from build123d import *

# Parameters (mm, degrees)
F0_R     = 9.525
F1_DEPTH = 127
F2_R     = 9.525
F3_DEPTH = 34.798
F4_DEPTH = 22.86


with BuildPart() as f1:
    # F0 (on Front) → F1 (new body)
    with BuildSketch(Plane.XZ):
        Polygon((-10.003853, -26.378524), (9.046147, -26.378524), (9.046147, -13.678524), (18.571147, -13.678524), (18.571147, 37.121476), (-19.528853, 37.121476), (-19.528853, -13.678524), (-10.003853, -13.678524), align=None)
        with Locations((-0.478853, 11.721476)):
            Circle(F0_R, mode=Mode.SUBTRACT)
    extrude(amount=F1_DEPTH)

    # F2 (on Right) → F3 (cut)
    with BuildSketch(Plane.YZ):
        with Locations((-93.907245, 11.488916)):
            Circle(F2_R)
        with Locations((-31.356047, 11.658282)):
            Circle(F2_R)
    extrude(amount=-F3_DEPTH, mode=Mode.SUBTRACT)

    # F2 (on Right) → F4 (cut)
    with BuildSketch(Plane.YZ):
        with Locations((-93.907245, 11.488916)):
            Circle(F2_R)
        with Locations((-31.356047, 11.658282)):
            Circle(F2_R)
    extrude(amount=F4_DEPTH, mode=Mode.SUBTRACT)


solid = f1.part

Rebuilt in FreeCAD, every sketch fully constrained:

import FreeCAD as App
import Part
import Sketcher
Q = App.Units.Quantity

doc = App.newDocument("Part")
params = doc.addObject("Spreadsheet::Sheet", "Params")
for row, (alias, value) in enumerate([
    ("sketch1_diameter", "0.75 in"),
    ("sketch1_height", "2 in"),
    ("sketch1_width", "1.5 in"),
    ("sketch1_height2", "0.5 in"),
    ("sketch1_width2", "0.75 in"),
    ("pad1_length", "5 in"),
    ("sketch2_diameter", "0.75 in"),
    ("pocket1_length", "1.37 in"),
    ("sketch3_diameter", "0.75 in"),
    ("pocket2_length", "0.9 in"),
], start=1):
    params.set(f"A{row}", alias)
    params.set(f"B{row}", "=" + value)
    params.setAlias(f"B{row}", alias)

body = doc.addObject("PartDesign::Body", "Body")

sketch1 = body.newObject("Sketcher::SketchObject", "Sketch")
sketch1.AttachmentSupport = (doc.getObject("XZ_Plane"), [""])
sketch1.MapMode = "FlatFace"
sketch1.addGeometry([
    Part.LineSegment(App.Vector(-10, -26, 0), App.Vector(9, -26, 0)),
    Part.LineSegment(App.Vector(9, -26, 0), App.Vector(9, -14, 0)),
    Part.LineSegment(App.Vector(9, -14, 0), App.Vector(19, -14, 0)),
    Part.LineSegment(App.Vector(19, -14, 0), App.Vector(19, 37, 0)),
    Part.LineSegment(App.Vector(19, 37, 0), App.Vector(-20, 37, 0)),
    Part.LineSegment(App.Vector(-20, 37, 0), App.Vector(-20, -14, 0)),
    Part.LineSegment(App.Vector(-20, -14, 0), App.Vector(-10, -14, 0)),
    Part.LineSegment(App.Vector(-10, -14, 0), App.Vector(-10, -26, 0)),
    Part.Circle(App.Vector(0, 12, 0), App.Vector(0, 0, 1), 10),
], False)
sketch1.addConstraint([
    Sketcher.Constraint("Coincident", 0, 2, 1, 1),
    Sketcher.Constraint("Coincident", 1, 2, 2, 1),
    Sketcher.Constraint("Coincident", 2, 2, 3, 1),
    Sketcher.Constraint("Coincident", 3, 2, 4, 1),
    Sketcher.Constraint("Coincident", 4, 2, 5, 1),
    Sketcher.Constraint("Coincident", 5, 2, 6, 1),
    Sketcher.Constraint("Coincident", 6, 2, 7, 1),
    Sketcher.Constraint("Coincident", 7, 2, 0, 1),
    Sketcher.Constraint("Horizontal", 0),
    Sketcher.Constraint("Vertical", 1),
    Sketcher.Constraint("Horizontal", 2),
    Sketcher.Constraint("Vertical", 3),
    Sketcher.Constraint("Horizontal", 4),
    Sketcher.Constraint("Vertical", 5),
    Sketcher.Constraint("Horizontal", 6),
    Sketcher.Constraint("Vertical", 7),
    Sketcher.Constraint("Horizontal", 2, 2, 5, 2),
    Sketcher.Constraint("Equal", 2, 6),
    Sketcher.Constraint("Diameter", 8, Q("0.75 in")),
    Sketcher.Constraint("DistanceY", 3, 1, 3, 2, Q("2 in")),
    Sketcher.Constraint("DistanceX", 4, 2, 4, 1, Q("1.5 in")),
    Sketcher.Constraint("DistanceY", 1, 1, 1, 2, Q("0.5 in")),
    Sketcher.Constraint("DistanceY", 1, 2, 8, 3, Q("1 in")),
    Sketcher.Constraint("DistanceX", 0, 1, 0, 2, Q("0.75 in")),
    Sketcher.Constraint("DistanceX", 8, 3, 2, 2, Q("0.75 in")),
    Sketcher.Constraint("DistanceX", 8, 3, -1, 1, Q("0.478853 mm")),
    Sketcher.Constraint("DistanceY", -1, 1, 8, 3, Q("11.721476 mm")),
])
sketch1.setExpression("Constraints[18]", "Params.sketch1_diameter")
sketch1.setExpression("Constraints[19]", "Params.sketch1_height")
sketch1.setExpression("Constraints[20]", "Params.sketch1_width")
sketch1.setExpression("Constraints[21]", "Params.sketch1_height2")
sketch1.setExpression("Constraints[23]", "Params.sketch1_width2")
pad1 = body.newObject("PartDesign::Pad", "Pad")
pad1.Profile = sketch1
pad1.setExpression("Length", "Params.pad1_length")

sketch2 = body.newObject("Sketcher::SketchObject", "Sketch001")
sketch2.AttachmentSupport = (doc.getObject("YZ_Plane"), [""])
sketch2.MapMode = "FlatFace"
sketch2.addGeometry([
    Part.Circle(App.Vector(-94, 11, 0), App.Vector(0, 0, 1), 10),
    Part.Circle(App.Vector(-31, 12, 0), App.Vector(0, 0, 1), 10),
], False)
sketch2.addConstraint([
    Sketcher.Constraint("Equal", 0, 1),
    Sketcher.Constraint("Diameter", 0, Q("0.75 in")),
    Sketcher.Constraint("DistanceX", 0, 3, -1, 1, Q("93.907245 mm")),
    Sketcher.Constraint("DistanceY", -1, 1, 0, 3, Q("11.488916 mm")),
    Sketcher.Constraint("DistanceX", 1, 3, -1, 1, Q("31.356047 mm")),
    Sketcher.Constraint("DistanceY", -1, 1, 1, 3, Q("11.658282 mm")),
])
sketch2.setExpression("Constraints[1]", "Params.sketch2_diameter")
pocket1 = body.newObject("PartDesign::Pocket", "Pocket")
pocket1.Profile = sketch2
pocket1.setExpression("Length", "Params.pocket1_length")

sketch3 = body.newObject("Sketcher::SketchObject", "Sketch002")
sketch3.AttachmentSupport = (doc.getObject("YZ_Plane"), [""])
sketch3.MapMode = "FlatFace"
sketch3.addGeometry([
    Part.Circle(App.Vector(-94, 11, 0), App.Vector(0, 0, 1), 10),
    Part.Circle(App.Vector(-31, 12, 0), App.Vector(0, 0, 1), 10),
], False)
sketch3.addConstraint([
    Sketcher.Constraint("Equal", 0, 1),
    Sketcher.Constraint("Diameter", 0, Q("0.75 in")),
    Sketcher.Constraint("DistanceX", 0, 3, -1, 1, Q("93.907245 mm")),
    Sketcher.Constraint("DistanceY", -1, 1, 0, 3, Q("11.488916 mm")),
    Sketcher.Constraint("DistanceX", 1, 3, -1, 1, Q("31.356047 mm")),
    Sketcher.Constraint("DistanceY", -1, 1, 1, 3, Q("11.658282 mm")),
])
sketch3.setExpression("Constraints[1]", "Params.sketch3_diameter")
pocket2 = body.newObject("PartDesign::Pocket", "Pocket001")
pocket2.Profile = sketch3
pocket2.setExpression("Length", "Params.pocket2_length")
pocket2.Reversed = True

doc.recompute()
